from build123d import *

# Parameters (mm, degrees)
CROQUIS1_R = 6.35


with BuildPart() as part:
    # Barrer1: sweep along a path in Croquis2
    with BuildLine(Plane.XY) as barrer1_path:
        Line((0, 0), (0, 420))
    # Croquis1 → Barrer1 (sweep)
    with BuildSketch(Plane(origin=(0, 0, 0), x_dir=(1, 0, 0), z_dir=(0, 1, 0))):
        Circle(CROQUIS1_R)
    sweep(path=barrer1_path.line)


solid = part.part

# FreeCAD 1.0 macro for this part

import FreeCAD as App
import Part
import Sketcher

V = App.Vector
Q = App.Units.Quantity

doc = App.newDocument("Part")
body = doc.addObject("PartDesign::Body", "Body")

sketch1 = body.newObject("Sketcher::SketchObject", "Sketch")
sketch1.AttachmentSupport = (doc.getObject("XZ_Plane"), [""])
sketch1.MapMode = "FlatFace"
sketch1.addGeometry(Part.Circle(V(0, 0, 0), V(0, 0, 1), 6), False)
sketch1.addConstraint([
    Sketcher.Constraint("Coincident", 0, 3, -1, 1),
    Sketcher.Constraint("Diameter", 0, Q("12.7 mm")),
])

sketch2 = body.newObject("Sketcher::SketchObject", "Sketch001")
sketch2.AttachmentSupport = (doc.getObject("XY_Plane"), [""])
sketch2.MapMode = "FlatFace"
sketch2.addGeometry(Part.LineSegment(V(0, 0, 0), V(0, 420, 0)), False)
sketch2.addConstraint([
    Sketcher.Constraint("Vertical", 0),
    Sketcher.Constraint("Coincident", 0, 1, -1, 1),
    Sketcher.Constraint("DistanceY", 0, 1, 0, 2, Q("420 mm")),
])
doc.recompute()

additivepipe = body.newObject("PartDesign::AdditivePipe", "AdditivePipe")
additivepipe.Profile = sketch1
additivepipe.Spine = (sketch2, ["Edge1"])

doc.recompute()
